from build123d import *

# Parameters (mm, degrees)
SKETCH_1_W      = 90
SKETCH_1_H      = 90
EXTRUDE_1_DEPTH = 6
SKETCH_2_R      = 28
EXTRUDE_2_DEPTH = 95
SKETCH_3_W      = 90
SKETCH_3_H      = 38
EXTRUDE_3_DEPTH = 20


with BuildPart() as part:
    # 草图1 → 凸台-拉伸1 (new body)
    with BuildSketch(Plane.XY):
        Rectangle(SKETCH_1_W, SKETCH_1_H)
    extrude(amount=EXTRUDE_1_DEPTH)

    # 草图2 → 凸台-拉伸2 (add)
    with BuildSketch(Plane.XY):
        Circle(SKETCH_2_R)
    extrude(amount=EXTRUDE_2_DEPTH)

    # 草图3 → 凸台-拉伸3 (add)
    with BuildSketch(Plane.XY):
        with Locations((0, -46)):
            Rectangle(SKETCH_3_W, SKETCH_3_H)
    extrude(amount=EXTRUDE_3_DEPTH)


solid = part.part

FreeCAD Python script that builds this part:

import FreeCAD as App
import Part
import Sketcher

V = App.Vector
Q = App.Units.Quantity


def add_polygon(sketch, points):
    """Adds a closed chain of lines whose ends are joined by coincident constraints."""
    first, n = sketch.GeometryCount, len(points)
    for a, b in zip(points, points[1:] + points[:1]):
        sketch.addGeometry(Part.LineSegment(App.Vector(*a, 0), App.Vector(*b, 0)), False)
    for i in range(n):
        sketch.addConstraint(Sketcher.Constraint("Coincident", first + i, 2, first + (i + 1) % n, 1))

doc = App.newDocument("Part")
body = doc.addObject("PartDesign::Body", "Body")

# Sketch on XY plane
sketch1 = body.newObject("Sketcher::SketchObject", "Sketch")
sketch1.AttachmentSupport = (doc.getObject("XY_Plane"), [""])
sketch1.MapMode = "FlatFace"
add_polygon(sketch1, [(-45, 45), (-45, -45), (45, -45), (45, 45)])  # lines 0-3
sketch1.addConstraint(Sketcher.Constraint("Vertical", 0))
sketch1.addConstraint(Sketcher.Constraint("Horizontal", 1))
sketch1.addConstraint(Sketcher.Constraint("Vertical", 2))
sketch1.addConstraint(Sketcher.Constraint("Horizontal", 3))
sketch1.addConstraint(Sketcher.Constraint("Symmetric", 0, 2, 2, 2, -1, 1))
sketch1.addConstraint(Sketcher.Constraint("Equal", 3, 0))
sketch1.addConstraint(Sketcher.Constraint("DistanceX", 1, 1, 1, 2, Q("90 mm")))
pad1 = body.newObject("PartDesign::Pad", "Pad")
pad1.Profile = sketch1
pad1.Length = 6

# Sketch on XY plane
sketch2 = body.newObject("Sketcher::SketchObject", "Sketch001")
sketch2.AttachmentSupport = (doc.getObject("XY_Plane"), [""])
sketch2.MapMode = "FlatFace"
sketch2.addGeometry(Part.Circle(V(0, 0, 0), V(0, 0, 1), 28), False)
sketch2.addConstraint(Sketcher.Constraint("Coincident", 0, 3, -1, 1))
sketch2.addConstraint(Sketcher.Constraint("Diameter", 0, Q("56 mm")))
pad2 = body.newObject("PartDesign::Pad", "Pad001")
pad2.Profile = sketch2
pad2.Length = 95

# Sketch on XY plane
sketch3 = body.newObject("Sketcher::SketchObject", "Sketch002")
sketch3.AttachmentSupport = (doc.getObject("XY_Plane"), [""])
sketch3.MapMode = "FlatFace"
add_polygon(sketch3, [(-45, -27), (-45, -65), (45, -65), (45, -27)])  # lines 0-3
sketch3.addConstraint(Sketcher.Constraint("Vertical", 0))
sketch3.addConstraint(Sketcher.Constraint("Horizontal", 1))
sketch3.addConstraint(Sketcher.Constraint("Vertical", 2))
sketch3.addConstraint(Sketcher.Constraint("Horizontal", 3))
sketch3.addConstraint(Sketcher.Constraint("DistanceX", 1, 1, 1, 2, Q("90 mm")))
sketch3.addConstraint(Sketcher.Constraint("DistanceY", 0, 2, 0, 1, Q("38 mm")))
sketch3.addConstraint(Sketcher.Constraint("DistanceX", 0, 2, -1, 1, Q("45 mm")))
sketch3.addConstraint(Sketcher.Constraint("DistanceY", 0, 2, -1, 1, Q("65 mm")))
pad3 = body.newObject("PartDesign::Pad", "Pad002")
pad3.Profile = sketch3
pad3.Length = 20

doc.recompute()
